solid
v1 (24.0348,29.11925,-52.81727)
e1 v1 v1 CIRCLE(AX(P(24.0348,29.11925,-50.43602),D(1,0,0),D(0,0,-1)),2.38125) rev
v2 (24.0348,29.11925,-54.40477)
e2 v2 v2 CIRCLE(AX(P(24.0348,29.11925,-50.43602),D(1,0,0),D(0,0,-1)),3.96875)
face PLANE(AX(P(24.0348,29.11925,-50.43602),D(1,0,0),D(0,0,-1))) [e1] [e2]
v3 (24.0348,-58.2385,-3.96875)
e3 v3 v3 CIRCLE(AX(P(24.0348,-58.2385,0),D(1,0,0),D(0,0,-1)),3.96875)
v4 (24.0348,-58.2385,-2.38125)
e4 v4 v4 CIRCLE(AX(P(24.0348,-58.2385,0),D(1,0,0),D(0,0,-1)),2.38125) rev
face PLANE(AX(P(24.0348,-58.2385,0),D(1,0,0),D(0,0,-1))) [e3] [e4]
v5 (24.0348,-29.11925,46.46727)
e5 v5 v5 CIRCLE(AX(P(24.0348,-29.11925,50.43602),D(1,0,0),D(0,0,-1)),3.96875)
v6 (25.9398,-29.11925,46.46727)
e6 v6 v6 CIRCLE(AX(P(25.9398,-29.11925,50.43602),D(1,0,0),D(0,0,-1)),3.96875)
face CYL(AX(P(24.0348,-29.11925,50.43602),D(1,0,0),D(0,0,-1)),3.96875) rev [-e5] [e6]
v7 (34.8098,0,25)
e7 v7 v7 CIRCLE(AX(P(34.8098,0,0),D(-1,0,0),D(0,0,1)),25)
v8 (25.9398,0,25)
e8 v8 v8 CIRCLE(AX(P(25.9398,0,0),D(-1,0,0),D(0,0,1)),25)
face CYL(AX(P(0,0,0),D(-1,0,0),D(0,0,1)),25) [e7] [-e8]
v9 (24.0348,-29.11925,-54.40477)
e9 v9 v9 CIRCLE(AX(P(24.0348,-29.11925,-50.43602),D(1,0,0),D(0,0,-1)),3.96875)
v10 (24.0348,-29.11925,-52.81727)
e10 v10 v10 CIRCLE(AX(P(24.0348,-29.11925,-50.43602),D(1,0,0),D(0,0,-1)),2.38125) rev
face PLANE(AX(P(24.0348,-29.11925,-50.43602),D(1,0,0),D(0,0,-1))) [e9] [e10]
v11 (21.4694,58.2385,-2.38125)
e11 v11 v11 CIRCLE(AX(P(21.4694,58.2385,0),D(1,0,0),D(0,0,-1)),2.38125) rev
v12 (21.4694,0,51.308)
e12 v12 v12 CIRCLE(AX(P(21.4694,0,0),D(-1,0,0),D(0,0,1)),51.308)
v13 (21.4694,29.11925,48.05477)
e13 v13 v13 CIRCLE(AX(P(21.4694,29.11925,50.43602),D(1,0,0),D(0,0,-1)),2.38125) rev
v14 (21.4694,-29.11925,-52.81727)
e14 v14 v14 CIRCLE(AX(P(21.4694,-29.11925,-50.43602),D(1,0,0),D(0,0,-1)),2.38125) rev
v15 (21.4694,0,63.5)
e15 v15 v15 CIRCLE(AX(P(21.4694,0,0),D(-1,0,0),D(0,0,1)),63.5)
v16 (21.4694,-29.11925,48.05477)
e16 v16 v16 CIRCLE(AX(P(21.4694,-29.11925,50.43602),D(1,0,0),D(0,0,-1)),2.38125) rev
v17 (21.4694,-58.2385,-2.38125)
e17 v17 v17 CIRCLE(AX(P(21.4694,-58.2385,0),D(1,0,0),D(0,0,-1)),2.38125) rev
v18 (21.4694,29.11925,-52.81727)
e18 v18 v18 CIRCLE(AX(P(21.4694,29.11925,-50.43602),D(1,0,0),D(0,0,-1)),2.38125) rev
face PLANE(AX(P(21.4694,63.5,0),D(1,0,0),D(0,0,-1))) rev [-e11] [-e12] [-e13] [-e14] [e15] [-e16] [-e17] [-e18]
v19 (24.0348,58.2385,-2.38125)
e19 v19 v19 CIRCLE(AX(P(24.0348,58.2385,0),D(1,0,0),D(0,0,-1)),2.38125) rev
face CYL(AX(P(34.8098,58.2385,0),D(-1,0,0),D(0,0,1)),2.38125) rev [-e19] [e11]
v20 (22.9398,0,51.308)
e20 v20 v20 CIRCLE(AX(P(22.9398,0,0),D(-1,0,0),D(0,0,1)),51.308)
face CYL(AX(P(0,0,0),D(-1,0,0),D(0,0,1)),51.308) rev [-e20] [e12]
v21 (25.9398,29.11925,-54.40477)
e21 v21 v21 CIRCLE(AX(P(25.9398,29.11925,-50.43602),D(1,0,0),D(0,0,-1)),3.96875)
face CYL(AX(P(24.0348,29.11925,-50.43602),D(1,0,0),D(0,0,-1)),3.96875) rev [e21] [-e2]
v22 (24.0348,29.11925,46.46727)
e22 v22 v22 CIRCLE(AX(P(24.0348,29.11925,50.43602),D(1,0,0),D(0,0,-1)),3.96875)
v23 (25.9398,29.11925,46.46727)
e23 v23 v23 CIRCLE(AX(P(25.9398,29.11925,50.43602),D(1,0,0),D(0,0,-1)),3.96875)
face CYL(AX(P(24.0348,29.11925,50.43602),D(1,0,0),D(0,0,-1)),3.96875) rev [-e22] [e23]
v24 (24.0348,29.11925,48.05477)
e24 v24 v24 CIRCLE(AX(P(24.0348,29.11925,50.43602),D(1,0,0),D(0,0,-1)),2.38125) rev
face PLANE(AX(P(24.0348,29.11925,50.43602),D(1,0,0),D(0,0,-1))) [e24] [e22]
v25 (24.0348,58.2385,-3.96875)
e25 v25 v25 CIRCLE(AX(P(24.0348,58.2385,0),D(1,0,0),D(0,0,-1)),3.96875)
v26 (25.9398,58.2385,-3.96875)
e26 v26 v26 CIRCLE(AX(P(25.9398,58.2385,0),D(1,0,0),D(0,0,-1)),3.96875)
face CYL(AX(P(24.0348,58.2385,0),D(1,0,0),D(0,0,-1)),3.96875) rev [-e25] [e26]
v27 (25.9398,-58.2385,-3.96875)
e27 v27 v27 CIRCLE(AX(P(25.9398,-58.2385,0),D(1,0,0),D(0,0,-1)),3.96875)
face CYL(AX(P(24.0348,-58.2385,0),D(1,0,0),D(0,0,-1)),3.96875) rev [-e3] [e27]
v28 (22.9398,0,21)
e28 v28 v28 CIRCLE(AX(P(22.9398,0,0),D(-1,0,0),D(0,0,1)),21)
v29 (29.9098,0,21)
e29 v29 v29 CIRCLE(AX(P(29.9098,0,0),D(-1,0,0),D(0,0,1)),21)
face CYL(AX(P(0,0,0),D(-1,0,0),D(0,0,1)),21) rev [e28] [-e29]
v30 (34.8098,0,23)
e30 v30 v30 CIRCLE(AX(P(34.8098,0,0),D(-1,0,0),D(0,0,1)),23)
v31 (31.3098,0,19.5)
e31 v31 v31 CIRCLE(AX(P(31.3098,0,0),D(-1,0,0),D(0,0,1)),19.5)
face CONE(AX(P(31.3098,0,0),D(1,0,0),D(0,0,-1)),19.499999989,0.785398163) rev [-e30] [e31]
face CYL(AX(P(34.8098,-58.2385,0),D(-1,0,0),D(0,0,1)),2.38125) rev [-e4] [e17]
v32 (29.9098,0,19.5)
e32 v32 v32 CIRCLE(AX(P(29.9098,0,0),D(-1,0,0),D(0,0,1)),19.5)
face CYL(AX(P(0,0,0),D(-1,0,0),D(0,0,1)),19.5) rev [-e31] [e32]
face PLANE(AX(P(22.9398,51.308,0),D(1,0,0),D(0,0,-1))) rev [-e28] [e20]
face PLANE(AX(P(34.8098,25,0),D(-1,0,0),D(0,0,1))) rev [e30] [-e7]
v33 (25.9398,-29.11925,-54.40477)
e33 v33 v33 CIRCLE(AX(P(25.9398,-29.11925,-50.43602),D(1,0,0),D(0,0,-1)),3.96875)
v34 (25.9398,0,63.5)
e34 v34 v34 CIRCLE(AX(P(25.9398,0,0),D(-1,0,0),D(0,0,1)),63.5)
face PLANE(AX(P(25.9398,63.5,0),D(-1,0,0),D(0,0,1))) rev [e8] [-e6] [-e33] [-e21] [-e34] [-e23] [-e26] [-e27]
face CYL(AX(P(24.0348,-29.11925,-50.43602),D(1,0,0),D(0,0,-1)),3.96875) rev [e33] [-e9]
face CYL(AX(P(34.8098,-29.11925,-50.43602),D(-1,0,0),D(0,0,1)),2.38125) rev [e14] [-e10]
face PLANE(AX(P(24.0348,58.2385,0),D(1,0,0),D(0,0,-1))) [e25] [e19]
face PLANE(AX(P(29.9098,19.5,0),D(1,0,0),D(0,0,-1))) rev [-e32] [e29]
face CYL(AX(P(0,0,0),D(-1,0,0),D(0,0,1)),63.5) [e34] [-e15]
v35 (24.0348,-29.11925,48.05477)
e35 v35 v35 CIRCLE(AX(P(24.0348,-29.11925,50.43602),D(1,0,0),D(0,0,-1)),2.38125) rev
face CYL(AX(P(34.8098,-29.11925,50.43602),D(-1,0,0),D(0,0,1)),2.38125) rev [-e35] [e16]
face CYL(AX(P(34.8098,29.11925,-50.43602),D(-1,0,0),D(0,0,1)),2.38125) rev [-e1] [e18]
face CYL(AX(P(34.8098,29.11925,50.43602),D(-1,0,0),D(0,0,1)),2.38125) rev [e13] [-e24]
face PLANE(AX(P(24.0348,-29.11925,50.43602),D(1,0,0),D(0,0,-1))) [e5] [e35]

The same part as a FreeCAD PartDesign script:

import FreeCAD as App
import Part
import Sketcher
Q = App.Units.Quantity


def add_polygon(sketch, points):
    """Adds a closed chain of lines whose ends are joined by coincident constraints."""
    first, n = sketch.GeometryCount, len(points)
    for a, b in zip(points, points[1:] + points[:1]):
        sketch.addGeometry(Part.LineSegment(App.Vector(*a, 0), App.Vector(*b, 0)), False)
    for i in range(n):
        sketch.addConstraint(Sketcher.Constraint("Coincident", first + i, 2, first + (i + 1) % n, 1))

doc = App.newDocument("Part")
body = doc.addObject("PartDesign::Body", "Body")

# Sketch on XY plane
sketch1 = body.newObject("Sketcher::SketchObject", "Sketch")
sketch1.AttachmentSupport = (doc.getObject("XY_Plane"), [""])
sketch1.MapMode = "FlatFace"
add_polygon(sketch1, [(34.8, 23), (34.8, 25), (25.9, 25), (25.9, 63.5), (21.5, 63.5), (21.5, 51.3), (22.9, 51.3), (22.9, 21), (29.9, 21), (29.9, 19.5), (31.3, 19.5)])  # lines 0-10
sketch1.addConstraint([
    Sketcher.Constraint("Vertical", 0),
    Sketcher.Constraint("Horizontal", 1),
    Sketcher.Constraint("Vertical", 2),
    Sketcher.Constraint("Horizontal", 3),
    Sketcher.Constraint("Vertical", 4),
    Sketcher.Constraint("Horizontal", 5),
    Sketcher.Constraint("Vertical", 6),
    Sketcher.Constraint("Horizontal", 7),
    Sketcher.Constraint("Vertical", 8),
    Sketcher.Constraint("Horizontal", 9),
    Sketcher.Constraint("Angle", 10, Q("45 deg")),
    Sketcher.Constraint("DistanceY", 4, 2, 4, 1, Q("0.48 in")),
    Sketcher.Constraint("DistanceY", -1, 1, 2, 2, Q("2.5 in")),
    Sketcher.Constraint("DistanceX", 3, 2, 3, 1, Q("0.176 in")),
    Sketcher.Constraint("DistanceX", 1, 2, 1, 1, 8.87),
    Sketcher.Constraint("DistanceX", 5, 1, 5, 2, 1.4704),
    Sketcher.Constraint("DistanceX", 7, 1, 7, 2, 6.97),
    Sketcher.Constraint("DistanceX", 9, 1, 9, 2, 1.4),
    Sketcher.Constraint("DistanceY", 0, 1, 0, 2, 2.0),
    Sketcher.Constraint("DistanceY", 2, 1, 2, 2, 38.5),
    Sketcher.Constraint("DistanceY", 6, 2, 6, 1, 30.308),
    Sketcher.Constraint("DistanceX", -1, 1, 0, 2, 34.8098),
])
revolution = body.newObject("PartDesign::Revolution", "Revolution")
revolution.Profile = sketch1
revolution.ReferenceAxis = (sketch1, ["H_Axis"])
revolution.Angle = 360

# Sketch on YZ plane
sketch2 = body.newObject("Sketcher::SketchObject", "Sketch001")
sketch2.AttachmentSupport = (doc.getObject("YZ_Plane"), [""])
sketch2.MapMode = "FlatFace"
sketch2.AttachmentOffset = App.Placement(App.Vector(0, 0, 24.0348), App.Rotation())
sketch2.addGeometry([
    Part.Circle(App.Vector(-29.1, -50.4, 0), App.Vector(0, 0, 1), 4),  # 0
    Part.Circle(App.Vector(-58.2, 0, 0), App.Vector(0, 0, 1), 4),  # 1
    Part.Circle(App.Vector(-29.1, 50.4, 0), App.Vector(0, 0, 1), 4),  # 2
    Part.Circle(App.Vector(29.1, 50.4, 0), App.Vector(0, 0, 1), 4),  # 3
    Part.Circle(App.Vector(29.1, -50.4, 0), App.Vector(0, 0, 1), 4),  # 4
    Part.Circle(App.Vector(58.2, 0, 0), App.Vector(0, 0, 1), 4),  # 5
], False)
sketch2.addConstraint([
    Sketcher.Constraint("Equal", 0, 1),
    Sketcher.Constraint("Equal", 1, 2),
    Sketcher.Constraint("Equal", 2, 3),
    Sketcher.Constraint("Equal", 3, 4),
    Sketcher.Constraint("Equal", 4, 5),
    Sketcher.Constraint("Symmetric", 0, 3, 3, 3, -1, 1),
    Sketcher.Constraint("Symmetric", 2, 3, 4, 3, -1, 1),
    Sketcher.Constraint("Symmetric", 1, 3, 5, 3, -1, 1),
    Sketcher.Constraint("Symmetric", 2, 3, 3, 3, -2),
    Sketcher.Constraint("PointOnObject", 1, 3, -1),
    Sketcher.Constraint("Diameter", 0, Q("0.3125 in")),
    Sketcher.Constraint("DistanceX", 1, 3, -1, 1, 58.2385),
    Sketcher.Constraint("DistanceX", 2, 3, 3, 3, 58.2385),
    Sketcher.Constraint("DistanceY", 0, 3, -1, 1, 50.43602),
])
pocket1 = body.newObject("PartDesign::Pocket", "Pocket")
pocket1.Profile = sketch2
pocket1.Length = Q("0.075 in")
pocket1.Reversed = True

# Sketch on YZ plane
sketch3 = body.newObject("Sketcher::SketchObject", "Sketch002")
sketch3.AttachmentSupport = (doc.getObject("YZ_Plane"), [""])
sketch3.MapMode = "FlatFace"
sketch3.addGeometry([
    Part.Circle(App.Vector(29.1, -50.4, 0), App.Vector(0, 0, 1), 2.4),  # 0
    Part.Circle(App.Vector(-29.1, -50.4, 0), App.Vector(0, 0, 1), 2.4),  # 1
    Part.Circle(App.Vector(-58.2, 0, 0), App.Vector(0, 0, 1), 2.4),  # 2
    Part.Circle(App.Vector(-29.1, 50.4, 0), App.Vector(0, 0, 1), 2.4),  # 3
    Part.Circle(App.Vector(29.1, 50.4, 0), App.Vector(0, 0, 1), 2.4),  # 4
    Part.Circle(App.Vector(58.2, 0, 0), App.Vector(0, 0, 1), 2.4),  # 5
], False)
sketch3.addConstraint([
    Sketcher.Constraint("Equal", 0, 1),
    Sketcher.Constraint("Equal", 1, 2),
    Sketcher.Constraint("Equal", 2, 3),
    Sketcher.Constraint("Equal", 3, 4),
    Sketcher.Constraint("Equal", 4, 5),
    Sketcher.Constraint("Symmetric", 0, 3, 3, 3, -1, 1),
    Sketcher.Constraint("Symmetric", 1, 3, 4, 3, -1, 1),
    Sketcher.Constraint("Symmetric", 2, 3, 5, 3, -1, 1),
    Sketcher.Constraint("Symmetric", 0, 3, 1, 3, -2),
    Sketcher.Constraint("PointOnObject", 2, 3, -1),
    Sketcher.Constraint("Diameter", 0, Q("0.1875 in")),
    Sketcher.Constraint("DistanceX", 2, 3, -1, 1, 58.2385),
    Sketcher.Constraint("DistanceX", 1, 3, 0, 3, 58.2385),
    Sketcher.Constraint("DistanceY", 0, 3, -1, 1, 50.43602),
])
pocket2 = body.newObject("PartDesign::Pocket", "Pocket001")
pocket2.Profile = sketch3
pocket2.Type = "ThroughAll"
pocket2.Reversed = True

doc.recompute()
